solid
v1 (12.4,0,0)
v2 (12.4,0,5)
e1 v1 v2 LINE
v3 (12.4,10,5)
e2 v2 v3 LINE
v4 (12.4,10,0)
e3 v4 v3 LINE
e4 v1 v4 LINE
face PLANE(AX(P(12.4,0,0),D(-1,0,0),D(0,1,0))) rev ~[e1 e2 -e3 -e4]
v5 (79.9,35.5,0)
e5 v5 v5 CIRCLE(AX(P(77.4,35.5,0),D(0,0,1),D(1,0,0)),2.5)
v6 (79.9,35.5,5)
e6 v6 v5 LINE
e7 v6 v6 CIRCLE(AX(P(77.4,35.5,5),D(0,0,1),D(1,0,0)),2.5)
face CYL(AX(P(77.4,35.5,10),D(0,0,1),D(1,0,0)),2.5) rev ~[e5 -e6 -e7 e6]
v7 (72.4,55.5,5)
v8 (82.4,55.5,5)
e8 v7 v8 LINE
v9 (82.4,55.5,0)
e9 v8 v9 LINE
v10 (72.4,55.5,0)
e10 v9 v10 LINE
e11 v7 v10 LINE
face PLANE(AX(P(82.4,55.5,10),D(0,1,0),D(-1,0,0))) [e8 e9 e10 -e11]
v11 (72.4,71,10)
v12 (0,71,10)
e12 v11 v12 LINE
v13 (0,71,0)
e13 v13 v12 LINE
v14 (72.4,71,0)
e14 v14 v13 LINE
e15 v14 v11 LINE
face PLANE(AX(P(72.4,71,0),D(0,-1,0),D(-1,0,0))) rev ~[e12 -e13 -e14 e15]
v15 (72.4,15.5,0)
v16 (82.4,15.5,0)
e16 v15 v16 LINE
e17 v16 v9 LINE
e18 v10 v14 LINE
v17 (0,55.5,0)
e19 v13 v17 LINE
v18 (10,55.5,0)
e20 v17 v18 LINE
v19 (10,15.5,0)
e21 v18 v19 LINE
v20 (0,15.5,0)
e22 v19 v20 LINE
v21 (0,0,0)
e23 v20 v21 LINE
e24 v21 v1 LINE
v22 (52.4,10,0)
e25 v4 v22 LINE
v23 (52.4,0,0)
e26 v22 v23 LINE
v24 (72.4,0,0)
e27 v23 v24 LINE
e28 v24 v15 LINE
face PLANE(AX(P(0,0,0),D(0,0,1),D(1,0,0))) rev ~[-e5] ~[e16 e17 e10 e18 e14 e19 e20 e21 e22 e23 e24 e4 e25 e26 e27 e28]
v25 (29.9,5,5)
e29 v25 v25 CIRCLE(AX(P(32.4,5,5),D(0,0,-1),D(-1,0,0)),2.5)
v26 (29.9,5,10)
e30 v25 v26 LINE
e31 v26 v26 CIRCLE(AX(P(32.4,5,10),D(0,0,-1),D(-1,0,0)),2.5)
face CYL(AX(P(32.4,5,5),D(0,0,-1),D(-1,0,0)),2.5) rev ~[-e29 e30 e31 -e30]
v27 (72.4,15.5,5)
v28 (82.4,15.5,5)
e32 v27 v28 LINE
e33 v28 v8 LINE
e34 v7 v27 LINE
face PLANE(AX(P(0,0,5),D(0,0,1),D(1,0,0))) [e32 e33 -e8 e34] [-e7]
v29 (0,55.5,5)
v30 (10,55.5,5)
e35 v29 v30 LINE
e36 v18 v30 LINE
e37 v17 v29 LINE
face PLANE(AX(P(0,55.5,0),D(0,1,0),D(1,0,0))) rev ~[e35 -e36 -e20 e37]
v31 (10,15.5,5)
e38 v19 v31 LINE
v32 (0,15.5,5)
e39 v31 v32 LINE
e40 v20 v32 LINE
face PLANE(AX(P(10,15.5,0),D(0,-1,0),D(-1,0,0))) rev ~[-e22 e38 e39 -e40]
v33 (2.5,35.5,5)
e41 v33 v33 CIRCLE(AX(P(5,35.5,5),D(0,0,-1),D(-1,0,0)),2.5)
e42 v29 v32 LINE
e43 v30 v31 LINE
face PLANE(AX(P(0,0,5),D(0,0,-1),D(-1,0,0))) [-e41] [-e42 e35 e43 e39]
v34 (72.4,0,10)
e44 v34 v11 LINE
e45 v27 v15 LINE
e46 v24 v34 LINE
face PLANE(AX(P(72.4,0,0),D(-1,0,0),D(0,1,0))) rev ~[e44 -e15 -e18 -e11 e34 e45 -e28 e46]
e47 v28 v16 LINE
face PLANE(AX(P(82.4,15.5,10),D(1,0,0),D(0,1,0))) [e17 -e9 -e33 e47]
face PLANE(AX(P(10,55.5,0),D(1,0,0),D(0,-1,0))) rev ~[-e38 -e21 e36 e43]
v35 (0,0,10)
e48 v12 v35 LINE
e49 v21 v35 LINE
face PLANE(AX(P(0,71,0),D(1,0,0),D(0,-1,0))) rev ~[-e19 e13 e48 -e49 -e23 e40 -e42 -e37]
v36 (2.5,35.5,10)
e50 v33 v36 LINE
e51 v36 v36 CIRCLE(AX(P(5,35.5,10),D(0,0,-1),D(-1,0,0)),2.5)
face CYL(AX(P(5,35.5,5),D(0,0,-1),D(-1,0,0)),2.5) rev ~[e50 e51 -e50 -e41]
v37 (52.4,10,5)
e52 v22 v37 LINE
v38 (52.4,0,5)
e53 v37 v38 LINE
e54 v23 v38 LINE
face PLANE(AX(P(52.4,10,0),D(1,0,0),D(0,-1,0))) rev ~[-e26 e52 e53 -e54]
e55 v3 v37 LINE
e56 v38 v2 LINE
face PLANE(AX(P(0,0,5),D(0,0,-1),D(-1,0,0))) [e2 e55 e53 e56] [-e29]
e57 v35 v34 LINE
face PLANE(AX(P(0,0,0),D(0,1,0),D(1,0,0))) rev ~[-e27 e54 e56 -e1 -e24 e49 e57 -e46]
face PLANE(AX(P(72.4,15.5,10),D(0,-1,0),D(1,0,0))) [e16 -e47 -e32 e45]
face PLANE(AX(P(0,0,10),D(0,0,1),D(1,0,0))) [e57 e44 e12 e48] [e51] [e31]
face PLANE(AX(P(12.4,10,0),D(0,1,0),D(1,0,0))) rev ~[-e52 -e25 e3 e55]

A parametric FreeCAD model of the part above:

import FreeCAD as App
import Part
import Sketcher
Q = App.Units.Quantity

doc = App.newDocument("Part")
body = doc.addObject("PartDesign::Body", "Body")

sketch1 = body.newObject("Sketcher::SketchObject", "Sketch")
sketch1.AttachmentSupport = (doc.getObject("XY_Plane"), [""])
sketch1.MapMode = "FlatFace"
sketch1.addGeometry(Part.LineSegment(App.Vector(0, 71, 0), App.Vector(0, 0, 0)), False)
sketch1.addGeometry(Part.LineSegment(App.Vector(0, 0, 0), App.Vector(72, 0, 0)), False)
sketch1.addGeometry(Part.LineSegment(App.Vector(72, 0, 0), App.Vector(72, 71, 0)), False)
sketch1.addGeometry(Part.LineSegment(App.Vector(72, 71, 0), App.Vector(0, 71, 0)), False)
sketch1.addConstraint(Sketcher.Constraint("Coincident", 0, 2, 1, 1))
sketch1.addConstraint(Sketcher.Constraint("Coincident", 1, 2, 2, 1))
sketch1.addConstraint(Sketcher.Constraint("Coincident", 2, 2, 3, 1))
sketch1.addConstraint(Sketcher.Constraint("Coincident", 3, 2, 0, 1))
sketch1.addConstraint(Sketcher.Constraint("Vertical", 0))
sketch1.addConstraint(Sketcher.Constraint("Horizontal", 1))
sketch1.addConstraint(Sketcher.Constraint("Vertical", 2))
sketch1.addConstraint(Sketcher.Constraint("Horizontal", 3))
sketch1.addConstraint(Sketcher.Constraint("Coincident", 0, 2, -1, 1))
sketch1.addConstraint(Sketcher.Constraint("DistanceY", 0, 2, 0, 1, Q("71 mm")))
sketch1.addConstraint(Sketcher.Constraint("DistanceX", 1, 1, 1, 2, Q("72.4 mm")))
pad1 = body.newObject("PartDesign::Pad", "Pad")
pad1.Profile = sketch1
pad1.Length = 10

sketch2 = body.newObject("Sketcher::SketchObject", "Sketch001")
sketch2.AttachmentSupport = (doc.getObject("XY_Plane"), [""])
sketch2.MapMode = "FlatFace"
sketch2.AttachmentOffset = App.Placement(App.Vector(0, 0, 10), App.Rotation())
sketch2.addGeometry(Part.LineSegment(App.Vector(72.4, 55.5, 0), App.Vector(72.4, 15.5, 0)), False)
sketch2.addGeometry(Part.LineSegment(App.Vector(72.4, 15.5, 0), App.Vector(82.4, 15.5, 0)), False)
sketch2.addGeometry(Part.LineSegment(App.Vector(82.4, 15.5, 0), App.Vector(82.4, 55.5, 0)), False)
sketch2.addGeometry(Part.LineSegment(App.Vector(82.4, 55.5, 0), App.Vector(72.4, 55.5, 0)), False)
sketch2.addGeometry(Part.Circle(App.Vector(77.4, 35.5, 0), App.Vector(0, 0, 1), 2.5), False)
sketch2.addConstraint(Sketcher.Constraint("Coincident", 0, 2, 1, 1))
sketch2.addConstraint(Sketcher.Constraint("Coincident", 1, 2, 2, 1))
sketch2.addConstraint(Sketcher.Constraint("Coincident", 2, 2, 3, 1))
sketch2.addConstraint(Sketcher.Constraint("Coincident", 3, 2, 0, 1))
sketch2.addConstraint(Sketcher.Constraint("Vertical", 0))
sketch2.addConstraint(Sketcher.Constraint("Horizontal", 1))
sketch2.addConstraint(Sketcher.Constraint("Vertical", 2))
sketch2.addConstraint(Sketcher.Constraint("Horizontal", 3))
sketch2.addConstraint(Sketcher.Constraint("Diameter", 4, Q("5 mm")))
sketch2.addConstraint(Sketcher.Constraint("DistanceX", 1, 1, 1, 2, Q("10 mm")))
sketch2.addConstraint(Sketcher.Constraint("DistanceY", 0, 2, 0, 1, Q("40 mm")))
sketch2.addConstraint(Sketcher.Constraint("DistanceX", 0, 2, 4, 3, Q("5 mm")))
sketch2.addConstraint(Sketcher.Constraint("DistanceY", -1, 1, 0, 2, Q("15.5 mm")))
sketch2.addConstraint(Sketcher.Constraint("DistanceY", 0, 2, 4, 3, Q("20 mm")))
sketch2.addConstraint(Sketcher.Constraint("DistanceX", -1, 1, 4, 3, Q("77.4 mm")))
pad2 = body.newObject("PartDesign::Pad", "Pad001")
pad2.Profile = sketch2
pad2.Length = 10
pad2.Reversed = True

sketch3 = body.newObject("Sketcher::SketchObject", "Sketch002")
sketch3.AttachmentSupport = (doc.getObject("XY_Plane"), [""])
sketch3.MapMode = "FlatFace"
sketch3.AttachmentOffset = App.Placement(App.Vector(0, 0, 10), App.Rotation())
sketch3.addGeometry(Part.LineSegment(App.Vector(82, 56, 0), App.Vector(72, 56, 0)), False)
sketch3.addGeometry(Part.LineSegment(App.Vector(72, 56, 0), App.Vector(72, 16, 0)), False)
sketch3.addGeometry(Part.LineSegment(App.Vector(72, 16, 0), App.Vector(82, 16, 0)), False)
sketch3.addGeometry(Part.LineSegment(App.Vector(82, 16, 0), App.Vector(82, 56, 0)), False)
sketch3.addConstraint(Sketcher.Constraint("Coincident", 0, 2, 1, 1))
sketch3.addConstraint(Sketcher.Constraint("Coincident", 1, 2, 2, 1))
sketch3.addConstraint(Sketcher.Constraint("Coincident", 2, 2, 3, 1))
sketch3.addConstraint(Sketcher.Constraint("Coincident", 3, 2, 0, 1))
sketch3.addConstraint(Sketcher.Constraint("Horizontal", 0))
sketch3.addConstraint(Sketcher.Constraint("Vertical", 1))
sketch3.addConstraint(Sketcher.Constraint("Horizontal", 2))
sketch3.addConstraint(Sketcher.Constraint("Vertical", 3))
sketch3.addConstraint(Sketcher.Constraint("DistanceX", 0, 2, 0, 1, Q("10 mm")))
sketch3.addConstraint(Sketcher.Constraint("DistanceY", 1, 2, 1, 1, Q("40 mm")))
sketch3.addConstraint(Sketcher.Constraint("DistanceX", -1, 1, 0, 2, Q("72.4 mm")))
sketch3.addConstraint(Sketcher.Constraint("DistanceY", -1, 1, 0, 2, Q("55.5 mm")))
pocket1 = body.newObject("PartDesign::Pocket", "Pocket")
pocket1.Profile = sketch3
pocket1.Length = 5

sketch4 = body.newObject("Sketcher::SketchObject", "Sketch003")
sketch4.AttachmentSupport = (doc.getObject("XY_Plane"), [""])
sketch4.MapMode = "FlatFace"
sketch4.addGeometry(Part.LineSegment(App.Vector(0, 16, 0), App.Vector(0, 56, 0)), False)
sketch4.addGeometry(Part.LineSegment(App.Vector(0, 56, 0), App.Vector(10, 56, 0)), False)
sketch4.addGeometry(Part.LineSegment(App.Vector(10, 56, 0), App.Vector(10, 16, 0)), False)
sketch4.addGeometry(Part.LineSegment(App.Vector(10, 16, 0), App.Vector(0, 16, 0)), False)
sketch4.addConstraint(Sketcher.Constraint("Coincident", 0, 2, 1, 1))
sketch4.addConstraint(Sketcher.Constraint("Coincident", 1, 2, 2, 1))
sketch4.addConstraint(Sketcher.Constraint("Coincident", 2, 2, 3, 1))
sketch4.addConstraint(Sketcher.Constraint("Coincident", 3, 2, 0, 1))
sketch4.addConstraint(Sketcher.Constraint("Vertical", 0))
sketch4.addConstraint(Sketcher.Constraint("Horizontal", 1))
sketch4.addConstraint(Sketcher.Constraint("Vertical", 2))
sketch4.addConstraint(Sketcher.Constraint("Horizontal", 3))
sketch4.addConstraint(Sketcher.Constraint("PointOnObject", 0, 2, -2))
sketch4.addConstraint(Sketcher.Constraint("DistanceX", 1, 1, 1, 2, Q("10 mm")))
sketch4.addConstraint(Sketcher.Constraint("DistanceY", 0, 1, 0, 2, Q("40 mm")))
sketch4.addConstraint(Sketcher.Constraint("DistanceY", -1, 1, 0, 2, Q("55.5 mm")))
pocket2 = body.newObject("PartDesign::Pocket", "Pocket001")
pocket2.Profile = sketch4
pocket2.Length = 5
pocket2.Reversed = True

sketch5 = body.newObject("Sketcher::SketchObject", "Sketch004")
sketch5.AttachmentSupport = (doc.getObject("XY_Plane"), [""])
sketch5.MapMode = "FlatFace"
sketch5.AttachmentOffset = App.Placement(App.Vector(0, 0, 5), App.Rotation())
sketch5.addGeometry(Part.Circle(App.Vector(5, 35.5, 0), App.Vector(0, 0, 1), 2.5), False)
sketch5.addConstraint(Sketcher.Constraint("Diameter", 0, Q("5 mm")))
sketch5.addConstraint(Sketcher.Constraint("DistanceX", -1, 1, 0, 3, Q("5 mm")))
sketch5.addConstraint(Sketcher.Constraint("DistanceY", -1, 1, 0, 3, Q("35.5 mm")))
pocket3 = body.newObject("PartDesign::Pocket", "Pocket002")
pocket3.Profile = sketch5
pocket3.Type = "ThroughAll"
pocket3.Reversed = True

sketch6 = body.newObject("Sketcher::SketchObject", "Sketch005")
sketch6.AttachmentSupport = (doc.getObject("XY_Plane"), [""])
sketch6.MapMode = "FlatFace"
sketch6.addGeometry(Part.LineSegment(App.Vector(12, 0, 0), App.Vector(12, 10, 0)), False)
sketch6.addGeometry(Part.LineSegment(App.Vector(12, 10, 0), App.Vector(52, 10, 0)), False)
sketch6.addGeometry(Part.LineSegment(App.Vector(52, 10, 0), App.Vector(52, 0, 0)), False)
sketch6.addGeometry(Part.LineSegment(App.Vector(52, 0, 0), App.Vector(12, 0, 0)), False)
sketch6.addConstraint(Sketcher.Constraint("Coincident", 0, 2, 1, 1))
sketch6.addConstraint(Sketcher.Constraint("Coincident", 1, 2, 2, 1))
sketch6.addConstraint(Sketcher.Constraint("Coincident", 2, 2, 3, 1))
sketch6.addConstraint(Sketcher.Constraint("Coincident", 3, 2, 0, 1))
sketch6.addConstraint(Sketcher.Constraint("Vertical", 0))
sketch6.addConstraint(Sketcher.Constraint("Horizontal", 1))
sketch6.addConstraint(Sketcher.Constraint("Vertical", 2))
sketch6.addConstraint(Sketcher.Constraint("Horizontal", 3))
sketch6.addConstraint(Sketcher.Constraint("PointOnObject", 2, 2, -1))
sketch6.addConstraint(Sketcher.Constraint("DistanceX", 1, 1, 1, 2, Q("40 mm")))
sketch6.addConstraint(Sketcher.Constraint("DistanceY", 0, 1, 0, 2, Q("10 mm")))
sketch6.addConstraint(Sketcher.Constraint("DistanceX", -1, 1, 0, 2, Q("12.4 mm")))
pocket4 = body.newObject("PartDesign::Pocket", "Pocket003")
pocket4.Profile = sketch6
pocket4.Length = 5
pocket4.Reversed = True

sketch7 = body.newObject("Sketcher::SketchObject", "Sketch006")
sketch7.AttachmentSupport = (doc.getObject("XY_Plane"), [""])
sketch7.MapMode = "FlatFace"
sketch7.AttachmentOffset = App.Placement(App.Vector(0, 0, 5), App.Rotation())
sketch7.addGeometry(Part.Circle(App.Vector(32.4, 5, 0), App.Vector(0, 0, 1), 2.5), False)
sketch7.addConstraint(Sketcher.Constraint("Diameter", 0, Q("5 mm")))
sketch7.addConstraint(Sketcher.Constraint("DistanceY", -1, 1, 0, 3, Q("5 mm")))
sketch7.addConstraint(Sketcher.Constraint("DistanceX", -1, 1, 0, 3, Q("32.4 mm")))
pocket5 = body.newObject("PartDesign::Pocket", "Pocket004")
pocket5.Profile = sketch7
pocket5.Type = "ThroughAll"
pocket5.Reversed = True

doc.recompute()
